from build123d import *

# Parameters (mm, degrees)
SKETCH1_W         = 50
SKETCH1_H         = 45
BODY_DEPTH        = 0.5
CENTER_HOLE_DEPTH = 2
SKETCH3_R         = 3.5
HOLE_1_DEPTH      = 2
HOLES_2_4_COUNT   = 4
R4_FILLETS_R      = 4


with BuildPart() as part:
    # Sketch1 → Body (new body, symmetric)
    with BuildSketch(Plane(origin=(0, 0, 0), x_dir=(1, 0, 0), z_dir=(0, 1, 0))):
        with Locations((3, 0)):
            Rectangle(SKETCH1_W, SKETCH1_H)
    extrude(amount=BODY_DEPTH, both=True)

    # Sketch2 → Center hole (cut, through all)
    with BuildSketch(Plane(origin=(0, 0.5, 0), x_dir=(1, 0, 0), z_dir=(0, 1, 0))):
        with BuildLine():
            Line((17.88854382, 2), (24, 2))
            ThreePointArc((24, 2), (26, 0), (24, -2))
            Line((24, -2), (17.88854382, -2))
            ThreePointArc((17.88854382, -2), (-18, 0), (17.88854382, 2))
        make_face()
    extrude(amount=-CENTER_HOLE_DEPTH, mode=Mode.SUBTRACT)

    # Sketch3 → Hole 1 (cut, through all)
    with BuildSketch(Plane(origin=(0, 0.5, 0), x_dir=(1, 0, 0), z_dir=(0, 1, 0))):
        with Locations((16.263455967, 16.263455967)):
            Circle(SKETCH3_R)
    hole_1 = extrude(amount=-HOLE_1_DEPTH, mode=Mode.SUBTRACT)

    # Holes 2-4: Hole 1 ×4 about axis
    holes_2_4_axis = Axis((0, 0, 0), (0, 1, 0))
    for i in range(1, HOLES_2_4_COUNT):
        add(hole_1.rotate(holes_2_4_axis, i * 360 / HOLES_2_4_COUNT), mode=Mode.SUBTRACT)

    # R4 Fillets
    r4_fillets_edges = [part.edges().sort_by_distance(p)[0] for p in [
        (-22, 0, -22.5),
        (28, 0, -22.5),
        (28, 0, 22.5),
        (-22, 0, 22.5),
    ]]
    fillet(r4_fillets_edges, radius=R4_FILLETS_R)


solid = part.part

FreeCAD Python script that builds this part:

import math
import FreeCAD as App
import Part
import Sketcher


def edges_at(feature, points):
    """Names of the edges that pass closest to the given points."""
    edges = feature.Shape.Edges
    near = lambda p: min(range(len(edges)), key=lambda i: edges[i].distToShape(Part.Vertex(*p))[0])
    return sorted({f"Edge{near(p) + 1}" for p in points})

doc = App.newDocument("Part")
params = doc.addObject("Spreadsheet::Sheet", "Params")
for row, (alias, value) in enumerate([
    ("sketch1_width", "50 mm"),
    ("sketch1_height", "45 mm"),
    ("pad1_length", "1 mm"),
    ("sketch2_radius", "18 mm"),
    ("sketch2_radius2", "2 mm"),
    ("sketch3_diameter", "7 mm"),
    ("fillet_radius", "4 mm"),
], start=1):
    params.set(f"A{row}", alias)
    params.set(f"B{row}", "=" + value)
    params.setAlias(f"B{row}", alias)

body = doc.addObject("PartDesign::Body", "Body")

sketch1 = body.newObject("Sketcher::SketchObject", "Sketch")
sketch1.AttachmentSupport = (doc.getObject("XZ_Plane"), [""])
sketch1.MapMode = "FlatFace"
sketch1.addGeometry([
    Part.LineSegment(App.Vector(-22, -22, 0), App.Vector(-22, 22, 0)),
    Part.LineSegment(App.Vector(-22, 22, 0), App.Vector(28, 22, 0)),
    Part.LineSegment(App.Vector(28, 22, 0), App.Vector(28, -22, 0)),
    Part.LineSegment(App.Vector(28, -22, 0), App.Vector(-22, -22, 0)),
], False)
sketch1.addConstraint([
    Sketcher.Constraint("Coincident", 0, 2, 1, 1),
    Sketcher.Constraint("Coincident", 1, 2, 2, 1),
    Sketcher.Constraint("Coincident", 2, 2, 3, 1),
    Sketcher.Constraint("Coincident", 3, 2, 0, 1),
    Sketcher.Constraint("Vertical", 0),
    Sketcher.Constraint("Horizontal", 1),
    Sketcher.Constraint("Vertical", 2),
    Sketcher.Constraint("Horizontal", 3),
    Sketcher.Constraint("DistanceX", 1, 1, 1, 2, 50.0),
    Sketcher.Constraint("DistanceY", 0, 1, 0, 2, 45.0),
    Sketcher.Constraint("DistanceX", 0, 2, -1, 1, 22.0),
    Sketcher.Constraint("DistanceY", -1, 1, 0, 2, 22.5),
])
sketch1.setExpression("Constraints[8]", "Params.sketch1_width")
sketch1.setExpression("Constraints[9]", "Params.sketch1_height")
pad1 = body.newObject("PartDesign::Pad", "Pad")
pad1.Profile = sketch1
pad1.setExpression("Length", "Params.pad1_length")
pad1.Midplane = True

sketch2 = body.newObject("Sketcher::SketchObject", "Sketch001")
sketch2.AttachmentSupport = (doc.getObject("XZ_Plane"), [""])
sketch2.MapMode = "FlatFace"
sketch2.AttachmentOffset = App.Placement(App.Vector(0, 0, -0.5), App.Rotation())
sketch2.addGeometry([
    Part.LineSegment(App.Vector(24, -2, 0), App.Vector(17.9, -2, 0)),
    Part.ArcOfCircle(Part.Circle(App.Vector(0, 0, 0), App.Vector(0, 0, 1), 18), math.radians(6), math.radians(354)),
    Part.LineSegment(App.Vector(17.9, 2, 0), App.Vector(24, 2, 0)),
    Part.ArcOfCircle(Part.Circle(App.Vector(24, 0, 0), App.Vector(0, 0, 1), 2), math.radians(-90), math.radians(90)),
], False)
sketch2.addConstraint([
    Sketcher.Constraint("Coincident", 0, 2, 1, 2),
    Sketcher.Constraint("Coincident", 1, 1, 2, 1),
    Sketcher.Constraint("Tangent", 2, 2, 3, 2),
    Sketcher.Constraint("Tangent", 3, 1, 0, 1),
    Sketcher.Constraint("Horizontal", 0),
    Sketcher.Constraint("Horizontal", 2),
    Sketcher.Constraint("Coincident", 1, 3, -1, 1),
    Sketcher.Constraint("PointOnObject", 3, 3, -1),
    Sketcher.Constraint("Radius", 1, 18.0),
    Sketcher.Constraint("Radius", 3, 2.0),
    Sketcher.Constraint("DistanceX", -1, 1, 3, 3, 24.0),
])
sketch2.setExpression("Constraints[8]", "Params.sketch2_radius")
sketch2.setExpression("Constraints[9]", "Params.sketch2_radius2")
pocket1 = body.newObject("PartDesign::Pocket", "Pocket")
pocket1.Profile = sketch2
pocket1.Type = "ThroughAll"
pocket1.Reversed = True

sketch3 = body.newObject("Sketcher::SketchObject", "Sketch002")
sketch3.AttachmentSupport = (doc.getObject("XZ_Plane"), [""])
sketch3.MapMode = "FlatFace"
sketch3.AttachmentOffset = App.Placement(App.Vector(0, 0, -0.5), App.Rotation())
sketch3.addGeometry(Part.Circle(App.Vector(16.3, -16.3, 0), App.Vector(0, 0, 1), 3.5), False)
sketch3.addConstraint([
    Sketcher.Constraint("Diameter", 0, 7.0),
    Sketcher.Constraint("DistanceX", -1, 1, 0, 3, 16.263456),
    Sketcher.Constraint("DistanceY", 0, 3, -1, 1, 16.263456),
])
sketch3.setExpression("Constraints[0]", "Params.sketch3_diameter")
pocket2 = body.newObject("PartDesign::Pocket", "Pocket001")
pocket2.Profile = sketch3
pocket2.Type = "ThroughAll"
pocket2.Reversed = True
doc.recompute()

polarpattern = body.newObject("PartDesign::PolarPattern", "PolarPattern")
polarpattern.Originals = [pocket2]
polarpattern.Axis = (doc.getObject("Y_Axis"), [""])
polarpattern.Angle = 360
polarpattern.Occurrences = 4
body.Tip = polarpattern
doc.recompute()

fillet = body.newObject("PartDesign::Fillet", "Fillet")
fillet.Base = (polarpattern, edges_at(polarpattern, [
    (-22, 0, -22.5),
    (28, 0, -22.5),
    (28, 0, 22.5),
    (-22, 0, 22.5),
]))
fillet.setExpression("Radius", "Params.fillet_radius")

doc.recompute()
